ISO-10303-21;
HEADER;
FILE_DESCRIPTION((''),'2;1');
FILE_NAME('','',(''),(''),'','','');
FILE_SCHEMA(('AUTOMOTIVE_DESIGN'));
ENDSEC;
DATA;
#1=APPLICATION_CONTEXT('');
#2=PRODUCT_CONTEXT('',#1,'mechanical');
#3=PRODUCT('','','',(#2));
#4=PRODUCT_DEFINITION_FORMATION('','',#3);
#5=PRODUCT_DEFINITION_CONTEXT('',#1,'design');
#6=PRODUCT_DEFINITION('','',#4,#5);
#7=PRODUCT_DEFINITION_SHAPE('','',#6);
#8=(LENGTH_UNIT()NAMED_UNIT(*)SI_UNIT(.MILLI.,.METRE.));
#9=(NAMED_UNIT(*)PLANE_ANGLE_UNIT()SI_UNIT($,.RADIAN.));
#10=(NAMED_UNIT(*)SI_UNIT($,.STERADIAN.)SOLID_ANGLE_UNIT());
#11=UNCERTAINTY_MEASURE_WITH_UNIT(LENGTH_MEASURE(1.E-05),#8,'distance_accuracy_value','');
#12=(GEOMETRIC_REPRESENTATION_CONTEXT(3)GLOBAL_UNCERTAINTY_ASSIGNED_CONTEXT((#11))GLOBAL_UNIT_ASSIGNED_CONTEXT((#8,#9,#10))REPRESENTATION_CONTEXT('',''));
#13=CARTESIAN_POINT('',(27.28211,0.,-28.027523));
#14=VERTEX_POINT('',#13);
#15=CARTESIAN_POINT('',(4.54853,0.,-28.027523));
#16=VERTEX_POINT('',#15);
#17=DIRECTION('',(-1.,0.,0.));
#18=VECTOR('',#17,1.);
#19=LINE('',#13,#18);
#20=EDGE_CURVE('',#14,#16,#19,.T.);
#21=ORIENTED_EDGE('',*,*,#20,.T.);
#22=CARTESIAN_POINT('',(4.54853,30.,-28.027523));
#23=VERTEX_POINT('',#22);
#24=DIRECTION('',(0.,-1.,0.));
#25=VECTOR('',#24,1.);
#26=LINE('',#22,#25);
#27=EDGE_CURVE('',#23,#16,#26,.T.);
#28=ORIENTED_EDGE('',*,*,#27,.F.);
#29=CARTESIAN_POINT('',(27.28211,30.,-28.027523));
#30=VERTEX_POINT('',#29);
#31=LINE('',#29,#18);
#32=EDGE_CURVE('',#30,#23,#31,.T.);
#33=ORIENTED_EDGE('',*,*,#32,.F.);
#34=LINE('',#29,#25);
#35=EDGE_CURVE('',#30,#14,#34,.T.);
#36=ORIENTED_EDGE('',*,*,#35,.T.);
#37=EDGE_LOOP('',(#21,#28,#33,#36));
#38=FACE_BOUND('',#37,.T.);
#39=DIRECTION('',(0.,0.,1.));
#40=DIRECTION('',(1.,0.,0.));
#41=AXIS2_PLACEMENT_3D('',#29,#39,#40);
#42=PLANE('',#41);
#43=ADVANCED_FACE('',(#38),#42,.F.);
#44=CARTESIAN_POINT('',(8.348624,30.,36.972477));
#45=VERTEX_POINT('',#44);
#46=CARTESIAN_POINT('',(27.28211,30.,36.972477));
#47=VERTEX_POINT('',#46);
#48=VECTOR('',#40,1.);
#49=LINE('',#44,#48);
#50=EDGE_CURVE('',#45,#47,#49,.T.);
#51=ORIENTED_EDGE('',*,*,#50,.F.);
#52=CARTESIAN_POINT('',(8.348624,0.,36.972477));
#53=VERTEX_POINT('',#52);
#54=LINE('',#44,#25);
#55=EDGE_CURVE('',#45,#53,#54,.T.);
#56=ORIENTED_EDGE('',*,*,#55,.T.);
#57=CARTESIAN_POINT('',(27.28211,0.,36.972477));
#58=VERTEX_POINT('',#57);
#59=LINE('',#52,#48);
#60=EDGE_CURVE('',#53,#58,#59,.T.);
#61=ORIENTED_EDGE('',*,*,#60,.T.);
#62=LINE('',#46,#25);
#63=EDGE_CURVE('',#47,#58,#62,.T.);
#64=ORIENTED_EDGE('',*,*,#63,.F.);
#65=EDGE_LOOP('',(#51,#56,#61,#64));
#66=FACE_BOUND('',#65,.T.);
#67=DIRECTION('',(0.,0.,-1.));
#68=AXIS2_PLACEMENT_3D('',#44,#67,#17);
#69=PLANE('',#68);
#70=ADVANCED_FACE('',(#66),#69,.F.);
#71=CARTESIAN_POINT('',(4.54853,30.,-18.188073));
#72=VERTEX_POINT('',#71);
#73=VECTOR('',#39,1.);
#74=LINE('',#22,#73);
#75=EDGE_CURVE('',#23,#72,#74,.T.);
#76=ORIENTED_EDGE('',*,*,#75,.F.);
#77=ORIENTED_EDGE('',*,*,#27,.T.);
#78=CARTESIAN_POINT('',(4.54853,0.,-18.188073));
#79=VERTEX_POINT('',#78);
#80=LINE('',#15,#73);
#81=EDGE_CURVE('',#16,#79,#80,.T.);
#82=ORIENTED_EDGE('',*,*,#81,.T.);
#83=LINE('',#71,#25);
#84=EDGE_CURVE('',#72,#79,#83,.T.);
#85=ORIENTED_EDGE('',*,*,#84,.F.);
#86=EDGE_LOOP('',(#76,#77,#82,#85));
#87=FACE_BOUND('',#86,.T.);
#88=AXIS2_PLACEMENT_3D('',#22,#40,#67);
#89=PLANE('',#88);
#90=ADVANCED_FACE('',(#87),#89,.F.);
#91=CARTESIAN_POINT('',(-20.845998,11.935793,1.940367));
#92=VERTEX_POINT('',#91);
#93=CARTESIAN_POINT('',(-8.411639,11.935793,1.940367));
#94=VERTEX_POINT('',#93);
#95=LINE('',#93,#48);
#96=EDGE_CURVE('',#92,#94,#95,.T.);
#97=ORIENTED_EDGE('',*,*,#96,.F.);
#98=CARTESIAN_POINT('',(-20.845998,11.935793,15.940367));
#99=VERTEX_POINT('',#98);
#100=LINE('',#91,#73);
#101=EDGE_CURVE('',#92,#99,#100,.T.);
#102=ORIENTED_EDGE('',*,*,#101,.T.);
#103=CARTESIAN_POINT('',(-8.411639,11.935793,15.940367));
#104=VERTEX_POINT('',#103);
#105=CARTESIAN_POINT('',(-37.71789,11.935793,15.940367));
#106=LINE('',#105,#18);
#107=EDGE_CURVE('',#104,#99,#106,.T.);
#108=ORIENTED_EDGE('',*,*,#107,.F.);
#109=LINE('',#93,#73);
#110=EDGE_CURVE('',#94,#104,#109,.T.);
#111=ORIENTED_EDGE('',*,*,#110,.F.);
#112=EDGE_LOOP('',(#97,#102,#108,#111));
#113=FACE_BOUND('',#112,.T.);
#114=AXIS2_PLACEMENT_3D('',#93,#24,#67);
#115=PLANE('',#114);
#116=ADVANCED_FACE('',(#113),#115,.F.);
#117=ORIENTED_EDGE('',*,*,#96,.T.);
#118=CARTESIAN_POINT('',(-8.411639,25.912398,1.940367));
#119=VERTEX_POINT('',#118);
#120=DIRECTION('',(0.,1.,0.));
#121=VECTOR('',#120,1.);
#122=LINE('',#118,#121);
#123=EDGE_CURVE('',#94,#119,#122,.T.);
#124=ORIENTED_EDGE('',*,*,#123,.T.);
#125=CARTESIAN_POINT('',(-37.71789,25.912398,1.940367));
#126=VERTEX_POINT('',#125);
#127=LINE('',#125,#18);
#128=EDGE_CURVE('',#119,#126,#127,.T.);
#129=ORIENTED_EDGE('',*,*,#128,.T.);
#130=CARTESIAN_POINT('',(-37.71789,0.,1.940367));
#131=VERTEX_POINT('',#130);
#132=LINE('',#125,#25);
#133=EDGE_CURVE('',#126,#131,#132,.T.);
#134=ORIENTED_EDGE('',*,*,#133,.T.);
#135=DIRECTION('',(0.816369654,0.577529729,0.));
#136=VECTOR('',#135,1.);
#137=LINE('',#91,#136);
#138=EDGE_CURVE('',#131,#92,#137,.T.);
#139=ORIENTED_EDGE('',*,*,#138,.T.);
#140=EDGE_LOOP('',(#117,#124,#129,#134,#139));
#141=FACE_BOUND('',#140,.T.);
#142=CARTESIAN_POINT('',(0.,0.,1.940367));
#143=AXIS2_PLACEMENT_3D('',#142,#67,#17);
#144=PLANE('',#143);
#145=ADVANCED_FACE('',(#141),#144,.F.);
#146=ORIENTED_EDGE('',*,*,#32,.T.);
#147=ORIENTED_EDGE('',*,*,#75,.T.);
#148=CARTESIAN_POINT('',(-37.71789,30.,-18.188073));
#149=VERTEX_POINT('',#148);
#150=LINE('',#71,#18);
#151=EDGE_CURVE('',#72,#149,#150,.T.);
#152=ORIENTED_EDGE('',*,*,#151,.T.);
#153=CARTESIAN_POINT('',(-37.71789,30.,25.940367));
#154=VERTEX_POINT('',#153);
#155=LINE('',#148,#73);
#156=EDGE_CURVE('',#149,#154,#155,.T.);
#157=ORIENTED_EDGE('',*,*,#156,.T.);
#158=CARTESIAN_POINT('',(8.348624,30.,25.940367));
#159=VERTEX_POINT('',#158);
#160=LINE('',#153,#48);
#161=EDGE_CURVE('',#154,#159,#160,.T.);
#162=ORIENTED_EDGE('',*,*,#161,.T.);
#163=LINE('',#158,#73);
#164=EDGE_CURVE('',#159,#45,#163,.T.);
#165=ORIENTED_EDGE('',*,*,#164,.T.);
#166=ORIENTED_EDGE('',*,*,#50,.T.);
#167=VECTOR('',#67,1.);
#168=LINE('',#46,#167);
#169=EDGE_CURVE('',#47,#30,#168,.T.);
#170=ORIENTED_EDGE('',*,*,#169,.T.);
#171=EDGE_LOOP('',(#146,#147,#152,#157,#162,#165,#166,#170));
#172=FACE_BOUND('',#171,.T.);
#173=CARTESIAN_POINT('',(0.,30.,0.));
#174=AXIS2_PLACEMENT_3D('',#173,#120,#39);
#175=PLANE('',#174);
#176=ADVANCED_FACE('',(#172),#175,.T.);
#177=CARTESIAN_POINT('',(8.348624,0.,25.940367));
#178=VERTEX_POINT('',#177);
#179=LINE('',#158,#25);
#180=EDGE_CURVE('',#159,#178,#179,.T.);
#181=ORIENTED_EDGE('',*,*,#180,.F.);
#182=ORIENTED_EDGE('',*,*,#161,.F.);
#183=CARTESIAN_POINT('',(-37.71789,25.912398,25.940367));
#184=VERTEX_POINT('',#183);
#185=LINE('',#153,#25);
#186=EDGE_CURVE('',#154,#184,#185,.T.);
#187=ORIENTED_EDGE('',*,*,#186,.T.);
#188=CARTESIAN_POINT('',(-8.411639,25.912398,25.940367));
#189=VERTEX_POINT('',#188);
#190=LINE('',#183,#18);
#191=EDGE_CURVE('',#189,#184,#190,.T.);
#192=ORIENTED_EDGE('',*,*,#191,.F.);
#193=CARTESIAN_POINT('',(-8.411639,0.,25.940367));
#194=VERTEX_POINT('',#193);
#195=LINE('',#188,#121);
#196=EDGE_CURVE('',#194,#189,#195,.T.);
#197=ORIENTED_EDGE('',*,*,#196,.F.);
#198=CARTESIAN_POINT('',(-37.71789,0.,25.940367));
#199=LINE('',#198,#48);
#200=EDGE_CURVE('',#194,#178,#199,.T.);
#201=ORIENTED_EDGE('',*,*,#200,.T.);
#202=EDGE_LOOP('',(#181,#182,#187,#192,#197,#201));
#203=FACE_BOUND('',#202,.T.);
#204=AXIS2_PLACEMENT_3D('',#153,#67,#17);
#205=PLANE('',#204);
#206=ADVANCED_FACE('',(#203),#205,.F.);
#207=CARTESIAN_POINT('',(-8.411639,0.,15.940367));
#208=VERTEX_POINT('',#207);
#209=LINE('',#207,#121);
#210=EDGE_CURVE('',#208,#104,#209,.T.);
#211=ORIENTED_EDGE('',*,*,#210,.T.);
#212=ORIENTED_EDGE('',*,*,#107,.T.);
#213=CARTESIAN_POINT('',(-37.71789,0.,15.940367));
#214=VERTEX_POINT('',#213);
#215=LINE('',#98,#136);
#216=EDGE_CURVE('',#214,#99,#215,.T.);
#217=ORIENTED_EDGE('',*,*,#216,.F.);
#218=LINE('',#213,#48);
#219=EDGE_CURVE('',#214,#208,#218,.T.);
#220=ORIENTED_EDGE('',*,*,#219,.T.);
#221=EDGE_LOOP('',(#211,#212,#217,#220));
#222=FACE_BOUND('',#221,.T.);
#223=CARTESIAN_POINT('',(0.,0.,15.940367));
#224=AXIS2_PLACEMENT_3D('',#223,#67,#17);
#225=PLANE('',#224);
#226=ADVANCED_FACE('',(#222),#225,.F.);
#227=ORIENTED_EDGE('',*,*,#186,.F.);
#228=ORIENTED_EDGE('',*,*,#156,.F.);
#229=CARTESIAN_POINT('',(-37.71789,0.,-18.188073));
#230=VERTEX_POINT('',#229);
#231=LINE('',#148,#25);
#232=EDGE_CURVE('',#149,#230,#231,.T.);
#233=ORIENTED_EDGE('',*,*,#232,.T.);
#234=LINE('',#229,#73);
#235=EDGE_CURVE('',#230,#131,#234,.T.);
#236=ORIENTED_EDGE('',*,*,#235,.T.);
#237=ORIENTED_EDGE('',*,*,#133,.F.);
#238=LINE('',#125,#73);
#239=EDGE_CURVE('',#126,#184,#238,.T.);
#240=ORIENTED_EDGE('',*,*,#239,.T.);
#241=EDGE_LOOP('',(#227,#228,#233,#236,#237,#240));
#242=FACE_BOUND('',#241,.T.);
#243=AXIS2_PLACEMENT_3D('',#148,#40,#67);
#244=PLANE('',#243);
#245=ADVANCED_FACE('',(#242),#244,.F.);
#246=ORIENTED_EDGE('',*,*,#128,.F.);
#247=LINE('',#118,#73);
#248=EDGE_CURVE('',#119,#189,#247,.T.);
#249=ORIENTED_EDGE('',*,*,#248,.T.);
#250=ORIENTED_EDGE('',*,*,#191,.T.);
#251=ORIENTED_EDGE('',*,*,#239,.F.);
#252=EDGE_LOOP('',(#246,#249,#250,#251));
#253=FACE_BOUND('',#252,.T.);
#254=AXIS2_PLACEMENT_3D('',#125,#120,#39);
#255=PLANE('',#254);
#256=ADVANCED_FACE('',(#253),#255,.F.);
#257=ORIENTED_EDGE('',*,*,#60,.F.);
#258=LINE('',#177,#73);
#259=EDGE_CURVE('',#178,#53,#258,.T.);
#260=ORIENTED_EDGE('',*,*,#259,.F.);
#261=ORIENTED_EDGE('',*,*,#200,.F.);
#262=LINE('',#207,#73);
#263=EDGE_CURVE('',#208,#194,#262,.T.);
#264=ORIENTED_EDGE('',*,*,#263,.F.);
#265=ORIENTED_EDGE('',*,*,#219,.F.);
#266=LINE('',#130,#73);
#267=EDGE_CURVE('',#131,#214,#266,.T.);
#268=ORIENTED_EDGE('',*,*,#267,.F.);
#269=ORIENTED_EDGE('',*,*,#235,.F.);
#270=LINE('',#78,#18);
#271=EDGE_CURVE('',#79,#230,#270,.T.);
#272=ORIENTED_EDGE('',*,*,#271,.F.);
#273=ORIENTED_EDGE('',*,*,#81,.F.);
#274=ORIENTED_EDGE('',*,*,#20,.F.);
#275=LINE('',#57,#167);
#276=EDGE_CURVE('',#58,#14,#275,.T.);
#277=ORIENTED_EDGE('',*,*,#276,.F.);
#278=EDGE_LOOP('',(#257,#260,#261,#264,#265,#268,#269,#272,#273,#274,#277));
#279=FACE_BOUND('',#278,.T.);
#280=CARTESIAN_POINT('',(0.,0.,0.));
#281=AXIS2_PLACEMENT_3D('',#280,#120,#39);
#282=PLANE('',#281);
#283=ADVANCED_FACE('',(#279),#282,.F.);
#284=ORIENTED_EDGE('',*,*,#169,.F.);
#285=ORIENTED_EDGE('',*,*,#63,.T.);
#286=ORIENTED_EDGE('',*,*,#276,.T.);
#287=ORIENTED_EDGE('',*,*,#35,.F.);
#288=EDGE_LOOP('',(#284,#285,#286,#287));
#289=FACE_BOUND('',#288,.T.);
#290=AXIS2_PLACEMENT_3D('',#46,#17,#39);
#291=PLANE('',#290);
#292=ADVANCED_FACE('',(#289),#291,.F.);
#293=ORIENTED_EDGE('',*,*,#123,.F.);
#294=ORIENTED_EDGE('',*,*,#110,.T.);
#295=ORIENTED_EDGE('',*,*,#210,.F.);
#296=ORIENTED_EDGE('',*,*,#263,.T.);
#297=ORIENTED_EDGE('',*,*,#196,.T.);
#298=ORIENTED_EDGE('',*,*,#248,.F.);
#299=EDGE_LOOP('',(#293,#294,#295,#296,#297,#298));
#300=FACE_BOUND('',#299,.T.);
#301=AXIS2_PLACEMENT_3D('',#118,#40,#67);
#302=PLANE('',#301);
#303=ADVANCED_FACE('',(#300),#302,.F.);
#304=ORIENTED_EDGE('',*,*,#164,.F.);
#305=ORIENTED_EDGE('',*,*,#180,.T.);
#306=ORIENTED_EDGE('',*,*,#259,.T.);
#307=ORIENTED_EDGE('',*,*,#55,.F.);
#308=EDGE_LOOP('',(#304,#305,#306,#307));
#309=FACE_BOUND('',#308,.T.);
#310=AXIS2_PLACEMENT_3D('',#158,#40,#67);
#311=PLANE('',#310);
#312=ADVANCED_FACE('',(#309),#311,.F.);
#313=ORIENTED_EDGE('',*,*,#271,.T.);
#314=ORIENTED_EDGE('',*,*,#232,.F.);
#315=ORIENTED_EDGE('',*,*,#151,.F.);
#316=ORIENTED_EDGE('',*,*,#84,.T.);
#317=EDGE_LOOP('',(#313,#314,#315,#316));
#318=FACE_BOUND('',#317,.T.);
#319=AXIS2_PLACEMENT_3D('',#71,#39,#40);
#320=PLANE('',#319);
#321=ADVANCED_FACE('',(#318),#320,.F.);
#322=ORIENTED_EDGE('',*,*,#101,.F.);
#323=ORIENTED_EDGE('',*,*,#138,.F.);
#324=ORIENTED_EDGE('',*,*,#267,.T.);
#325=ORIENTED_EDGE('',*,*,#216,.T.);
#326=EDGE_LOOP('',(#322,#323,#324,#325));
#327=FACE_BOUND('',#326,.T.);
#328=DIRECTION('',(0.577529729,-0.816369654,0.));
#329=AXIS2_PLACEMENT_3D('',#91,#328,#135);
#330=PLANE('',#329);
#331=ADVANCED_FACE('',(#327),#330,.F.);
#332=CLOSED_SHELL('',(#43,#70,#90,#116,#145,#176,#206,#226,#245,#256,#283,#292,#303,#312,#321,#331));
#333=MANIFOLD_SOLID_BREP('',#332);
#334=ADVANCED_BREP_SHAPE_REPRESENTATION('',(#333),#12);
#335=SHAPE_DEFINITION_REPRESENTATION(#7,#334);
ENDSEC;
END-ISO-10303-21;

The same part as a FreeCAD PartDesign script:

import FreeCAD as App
import Part
import Sketcher
Q = App.Units.Quantity

doc = App.newDocument("Part")
params = doc.addObject("Spreadsheet::Sheet", "Params")
for row, (alias, value) in enumerate([
    ("sketch1_height", "65 mm"),
    ("pad1_length", "30 mm"),
    ("pocket1_length", "24 mm"),
    ("pocket2_length", "10 mm"),
], start=1):
    params.set(f"A{row}", alias)
    params.set(f"B{row}", "=" + value)
    params.setAlias(f"B{row}", alias)

body = doc.addObject("PartDesign::Body", "Body")

sketch1 = body.newObject("Sketcher::SketchObject", "Sketch")
sketch1.AttachmentSupport = (doc.getObject("XZ_Plane"), [""])
sketch1.MapMode = "FlatFace"
sketch1.addGeometry(Part.LineSegment(App.Vector(-38, -18, 0), App.Vector(-38, 26, 0)), False)
sketch1.addGeometry(Part.LineSegment(App.Vector(-38, 26, 0), App.Vector(8, 26, 0)), False)
sketch1.addGeometry(Part.LineSegment(App.Vector(8, 26, 0), App.Vector(8, 37, 0)), False)
sketch1.addGeometry(Part.LineSegment(App.Vector(8, 37, 0), App.Vector(27, 37, 0)), False)
sketch1.addGeometry(Part.LineSegment(App.Vector(27, 37, 0), App.Vector(27, -28, 0)), False)
sketch1.addGeometry(Part.LineSegment(App.Vector(27, -28, 0), App.Vector(5, -28, 0)), False)
sketch1.addGeometry(Part.LineSegment(App.Vector(5, -28, 0), App.Vector(5, -18, 0)), False)
sketch1.addGeometry(Part.LineSegment(App.Vector(5, -18, 0), App.Vector(-38, -18, 0)), False)
sketch1.addConstraint(Sketcher.Constraint("Coincident", 0, 2, 1, 1))
sketch1.addConstraint(Sketcher.Constraint("Coincident", 1, 2, 2, 1))
sketch1.addConstraint(Sketcher.Constraint("Coincident", 2, 2, 3, 1))
sketch1.addConstraint(Sketcher.Constraint("Coincident", 3, 2, 4, 1))
sketch1.addConstraint(Sketcher.Constraint("Coincident", 4, 2, 5, 1))
sketch1.addConstraint(Sketcher.Constraint("Coincident", 5, 2, 6, 1))
sketch1.addConstraint(Sketcher.Constraint("Coincident", 6, 2, 7, 1))
sketch1.addConstraint(Sketcher.Constraint("Coincident", 7, 2, 0, 1))
sketch1.addConstraint(Sketcher.Constraint("Vertical", 0))
sketch1.addConstraint(Sketcher.Constraint("Horizontal", 1))
sketch1.addConstraint(Sketcher.Constraint("Vertical", 2))
sketch1.addConstraint(Sketcher.Constraint("Horizontal", 3))
sketch1.addConstraint(Sketcher.Constraint("Vertical", 4))
sketch1.addConstraint(Sketcher.Constraint("Horizontal", 5))
sketch1.addConstraint(Sketcher.Constraint("Vertical", 6))
sketch1.addConstraint(Sketcher.Constraint("Horizontal", 7))
sketch1.addConstraint(Sketcher.Constraint("DistanceY", 4, 2, 4, 1, Q("65 mm")))
sketch1.addConstraint(Sketcher.Constraint("DistanceX", 0, 2, 3, 2, Q("65 mm")))
sketch1.addConstraint(Sketcher.Constraint("DistanceX", 5, 2, 5, 1, Q("22.73358 mm")))
sketch1.addConstraint(Sketcher.Constraint("DistanceY", 0, 1, 0, 2, Q("44.12844 mm")))
sketch1.addConstraint(Sketcher.Constraint("DistanceY", 2, 1, 2, 2, Q("11.03211 mm")))
sketch1.addConstraint(Sketcher.Constraint("DistanceX", 1, 1, 1, 2, Q("46.066514 mm")))
sketch1.addConstraint(Sketcher.Constraint("DistanceX", 0, 2, -1, 1, Q("37.71789 mm")))
sketch1.addConstraint(Sketcher.Constraint("DistanceY", -1, 1, 0, 2, Q("25.940367 mm")))
sketch1.setExpression("Constraints[16]", "Params.sketch1_height")
pad1 = body.newObject("PartDesign::Pad", "Pad")
pad1.Profile = sketch1
pad1.setExpression("Length", "Params.pad1_length")
pad1.Reversed = True

sketch2 = body.newObject("Sketcher::SketchObject", "Sketch001")
sketch2.AttachmentSupport = (doc.getObject("XY_Plane"), [""])
sketch2.MapMode = "FlatFace"
sketch2.AttachmentOffset = App.Placement(App.Vector(0, 0, 25.940367), App.Rotation())
sketch2.addGeometry(Part.LineSegment(App.Vector(-8, 26, 0), App.Vector(-38, 26, 0)), False)
sketch2.addGeometry(Part.LineSegment(App.Vector(-38, 26, 0), App.Vector(-38, 0, 0)), False)
sketch2.addGeometry(Part.LineSegment(App.Vector(-38, 0, 0), App.Vector(-21, 12, 0)), False)
sketch2.addGeometry(Part.LineSegment(App.Vector(-21, 12, 0), App.Vector(-8, 12, 0)), False)
sketch2.addGeometry(Part.LineSegment(App.Vector(-8, 12, 0), App.Vector(-8, 26, 0)), False)
sketch2.addConstraint(Sketcher.Constraint("Coincident", 0, 2, 1, 1))
sketch2.addConstraint(Sketcher.Constraint("Coincident", 1, 2, 2, 1))
sketch2.addConstraint(Sketcher.Constraint("Coincident", 2, 2, 3, 1))
sketch2.addConstraint(Sketcher.Constraint("Coincident", 3, 2, 4, 1))
sketch2.addConstraint(Sketcher.Constraint("Coincident", 4, 2, 0, 1))
sketch2.addConstraint(Sketcher.Constraint("Horizontal", 0))
sketch2.addConstraint(Sketcher.Constraint("Vertical", 1))
sketch2.addConstraint(Sketcher.Constraint("Horizontal", 3))
sketch2.addConstraint(Sketcher.Constraint("Vertical", 4))
sketch2.addConstraint(Sketcher.Constraint("PointOnObject", 1, 2, -1))
sketch2.addConstraint(Sketcher.Constraint("DistanceY", 1, 2, 1, 1, Q("25.912398 mm")))
sketch2.addConstraint(Sketcher.Constraint("DistanceX", 2, 2, -1, 1, Q("20.845998 mm")))
sketch2.addConstraint(Sketcher.Constraint("DistanceX", 0, 2, 0, 1, Q("29.306251 mm")))
sketch2.addConstraint(Sketcher.Constraint("DistanceX", 3, 1, 3, 2, Q("12.434359 mm")))
sketch2.addConstraint(Sketcher.Constraint("DistanceY", 4, 1, 4, 2, Q("13.976605 mm")))
pocket1 = body.newObject("PartDesign::Pocket", "Pocket")
pocket1.Profile = sketch2
pocket1.setExpression("Length", "Params.pocket1_length")

sketch3 = body.newObject("Sketcher::SketchObject", "Sketch002")
sketch3.AttachmentSupport = (doc.getObject("XY_Plane"), [""])
sketch3.MapMode = "FlatFace"
sketch3.AttachmentOffset = App.Placement(App.Vector(0, 0, 25.940367), App.Rotation())
sketch3.addGeometry(Part.LineSegment(App.Vector(-38, 12, 0), App.Vector(-38, 0, 0)), False)
sketch3.addGeometry(Part.LineSegment(App.Vector(-38, 0, 0), App.Vector(-8, 0, 0)), False)
sketch3.addGeometry(Part.LineSegment(App.Vector(-8, 0, 0), App.Vector(-8, 12, 0)), False)
sketch3.addGeometry(Part.LineSegment(App.Vector(-8, 12, 0), App.Vector(-38, 12, 0)), False)
sketch3.addConstraint(Sketcher.Constraint("Coincident", 0, 2, 1, 1))
sketch3.addConstraint(Sketcher.Constraint("Coincident", 1, 2, 2, 1))
sketch3.addConstraint(Sketcher.Constraint("Coincident", 2, 2, 3, 1))
sketch3.addConstraint(Sketcher.Constraint("Coincident", 3, 2, 0, 1))
sketch3.addConstraint(Sketcher.Constraint("Vertical", 0))
sketch3.addConstraint(Sketcher.Constraint("Horizontal", 1))
sketch3.addConstraint(Sketcher.Constraint("Vertical", 2))
sketch3.addConstraint(Sketcher.Constraint("Horizontal", 3))
sketch3.addConstraint(Sketcher.Constraint("PointOnObject", 0, 2, -1))
sketch3.addConstraint(Sketcher.Constraint("DistanceX", 1, 1, 1, 2, Q("29.306251 mm")))
sketch3.addConstraint(Sketcher.Constraint("DistanceY", 0, 2, 0, 1, Q("11.935793 mm")))
sketch3.addConstraint(Sketcher.Constraint("DistanceX", 0, 2, -1, 1, Q("37.71789 mm")))
pocket2 = body.newObject("PartDesign::Pocket", "Pocket001")
pocket2.Profile = sketch3
pocket2.setExpression("Length", "Params.pocket2_length")

doc.recompute()
